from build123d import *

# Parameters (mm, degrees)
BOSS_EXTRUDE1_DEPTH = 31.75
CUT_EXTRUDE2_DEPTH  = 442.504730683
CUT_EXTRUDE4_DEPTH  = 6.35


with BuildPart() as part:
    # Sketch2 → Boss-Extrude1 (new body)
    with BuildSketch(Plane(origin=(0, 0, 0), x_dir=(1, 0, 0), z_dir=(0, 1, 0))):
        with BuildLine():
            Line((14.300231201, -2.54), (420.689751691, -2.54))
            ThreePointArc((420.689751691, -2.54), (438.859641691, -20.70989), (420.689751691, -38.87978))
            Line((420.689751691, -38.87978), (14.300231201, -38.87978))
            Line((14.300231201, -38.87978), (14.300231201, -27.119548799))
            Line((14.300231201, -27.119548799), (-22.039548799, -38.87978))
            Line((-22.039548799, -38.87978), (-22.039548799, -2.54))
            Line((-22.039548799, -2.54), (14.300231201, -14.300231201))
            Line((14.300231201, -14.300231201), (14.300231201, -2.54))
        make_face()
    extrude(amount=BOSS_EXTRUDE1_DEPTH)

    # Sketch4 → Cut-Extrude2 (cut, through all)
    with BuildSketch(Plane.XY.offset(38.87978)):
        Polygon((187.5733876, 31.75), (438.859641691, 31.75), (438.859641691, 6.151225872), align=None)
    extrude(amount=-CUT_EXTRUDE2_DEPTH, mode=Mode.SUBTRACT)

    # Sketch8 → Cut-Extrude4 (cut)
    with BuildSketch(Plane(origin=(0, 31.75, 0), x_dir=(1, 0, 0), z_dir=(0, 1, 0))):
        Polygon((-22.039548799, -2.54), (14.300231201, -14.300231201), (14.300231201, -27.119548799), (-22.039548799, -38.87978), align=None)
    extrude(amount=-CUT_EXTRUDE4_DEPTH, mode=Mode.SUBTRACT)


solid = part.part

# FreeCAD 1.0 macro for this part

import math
import FreeCAD as App
import Part
import Sketcher

V = App.Vector
Q = App.Units.Quantity


def add_polygon(sketch, points):
    """Adds a closed chain of lines whose ends are joined by coincident constraints."""
    first, n = sketch.GeometryCount, len(points)
    for a, b in zip(points, points[1:] + points[:1]):
        sketch.addGeometry(Part.LineSegment(App.Vector(*a, 0), App.Vector(*b, 0)), False)
    for i in range(n):
        sketch.addConstraint(Sketcher.Constraint("Coincident", first + i, 2, first + (i + 1) % n, 1))

doc = App.newDocument("Part")
body = doc.addObject("PartDesign::Body", "Body")

# Sketch on XZ plane
sketch1 = body.newObject("Sketcher::SketchObject", "Sketch")
sketch1.AttachmentSupport = (doc.getObject("XZ_Plane"), [""])
sketch1.MapMode = "FlatFace"
sketch1.addGeometry(Part.LineSegment(V(421, 3, 0), V(14, 3, 0)), False)
sketch1.addGeometry(Part.LineSegment(V(14, 3, 0), V(14, 14, 0)), False)
sketch1.addGeometry(Part.LineSegment(V(14, 14, 0), V(-22, 3, 0)), False)
sketch1.addGeometry(Part.LineSegment(V(-22, 3, 0), V(-22, 39, 0)), False)
sketch1.addGeometry(Part.LineSegment(V(-22, 39, 0), V(14, 27, 0)), False)
sketch1.addGeometry(Part.LineSegment(V(14, 27, 0), V(14, 39, 0)), False)
sketch1.addGeometry(Part.LineSegment(V(14, 39, 0), V(421, 39, 0)), False)
sketch1.addGeometry(Part.ArcOfCircle(Part.Circle(V(421, 21, 0), V(0, 0, 1), 18), math.radians(-90), math.radians(90)), False)
sketch1.addConstraint(Sketcher.Constraint("Coincident", 0, 2, 1, 1))
sketch1.addConstraint(Sketcher.Constraint("Coincident", 1, 2, 2, 1))
sketch1.addConstraint(Sketcher.Constraint("Coincident", 2, 2, 3, 1))
sketch1.addConstraint(Sketcher.Constraint("Coincident", 3, 2, 4, 1))
sketch1.addConstraint(Sketcher.Constraint("Coincident", 4, 2, 5, 1))
sketch1.addConstraint(Sketcher.Constraint("Coincident", 5, 2, 6, 1))
sketch1.addConstraint(Sketcher.Constraint("Tangent", 6, 2, 7, 2))
sketch1.addConstraint(Sketcher.Constraint("Tangent", 7, 1, 0, 1))
sketch1.addConstraint(Sketcher.Constraint("Horizontal", 0))
sketch1.addConstraint(Sketcher.Constraint("Vertical", 1))
sketch1.addConstraint(Sketcher.Constraint("Vertical", 3))
sketch1.addConstraint(Sketcher.Constraint("Vertical", 5))
sketch1.addConstraint(Sketcher.Constraint("Horizontal", 6))
sketch1.addConstraint(Sketcher.Constraint("Horizontal", 0, 2, 2, 2))
sketch1.addConstraint(Sketcher.Constraint("Horizontal", 3, 2, 5, 2))
sketch1.addConstraint(Sketcher.Constraint("Vertical", 1, 2, 4, 2))
sketch1.addConstraint(Sketcher.Constraint("Equal", 1, 5))
sketch1.addConstraint(Sketcher.Constraint("DistanceY", -1, 1, 0, 2, Q("0.1 in")))
sketch1.addConstraint(Sketcher.Constraint("DistanceY", 3, 1, 3, 2, Q("1.4307 in")))
sketch1.addConstraint(Sketcher.Constraint("DistanceX", 2, 2, 0, 2, Q("1.4307 in")))
sketch1.addConstraint(Sketcher.Constraint("DistanceX", 0, 2, 0, 1, Q("406.38952 mm")))
sketch1.addConstraint(Sketcher.Constraint("DistanceY", 1, 1, 1, 2, Q("11.760231 mm")))
sketch1.addConstraint(Sketcher.Constraint("DistanceX", -1, 1, 7, 3, Q("420.689752 mm")))
pad1 = body.newObject("PartDesign::Pad", "Pad")
pad1.Profile = sketch1
pad1.Length = Q("1.25 in")
pad1.Reversed = True

# Sketch on XY plane
sketch2 = body.newObject("Sketcher::SketchObject", "Sketch001")
sketch2.AttachmentSupport = (doc.getObject("XY_Plane"), [""])
sketch2.MapMode = "FlatFace"
sketch2.AttachmentOffset = App.Placement(V(0, 0, 1.5307 * 25.4), App.Rotation())
add_polygon(sketch2, [(439, 32), (188, 32), (439, 6)])  # lines 0-2
sketch2.addConstraint(Sketcher.Constraint("Horizontal", 0))
sketch2.addConstraint(Sketcher.Constraint("Vertical", 2))
sketch2.addConstraint(Sketcher.Constraint("DistanceY", -1, 1, 0, 2, Q("1.25 in")))
sketch2.addConstraint(Sketcher.Constraint("DistanceX", 0, 2, 0, 1, Q("251.286254 mm")))
sketch2.addConstraint(Sketcher.Constraint("DistanceY", 2, 1, 2, 2, Q("25.598774 mm")))
sketch2.addConstraint(Sketcher.Constraint("DistanceX", -1, 1, 1, 2, Q("438.859642 mm")))
pocket1 = body.newObject("PartDesign::Pocket", "Pocket")
pocket1.Profile = sketch2
pocket1.Type = "ThroughAll"

# Sketch on XZ plane
sketch3 = body.newObject("Sketcher::SketchObject", "Sketch002")
sketch3.AttachmentSupport = (doc.getObject("XZ_Plane"), [""])
sketch3.MapMode = "FlatFace"
sketch3.AttachmentOffset = App.Placement(V(0, 0, -1.25 * 25.4), App.Rotation())
add_polygon(sketch3, [(14, 14), (-22, 3), (-22, 39), (14, 27)])  # lines 0-3
sketch3.addConstraint(Sketcher.Constraint("Vertical", 1))
sketch3.addConstraint(Sketcher.Constraint("Vertical", 3))
sketch3.addConstraint(Sketcher.Constraint("Equal", 0, 2))
sketch3.addConstraint(Sketcher.Constraint("DistanceY", -1, 1, 0, 2, Q("0.1 in")))
sketch3.addConstraint(Sketcher.Constraint("DistanceY", 1, 1, 1, 2, Q("1.4307 in")))
sketch3.addConstraint(Sketcher.Constraint("DistanceX", 1, 2, 2, 2, Q("1.4307 in")))
sketch3.addConstraint(Sketcher.Constraint("DistanceY", 3, 2, 3, 1, Q("12.819318 mm")))
sketch3.addConstraint(Sketcher.Constraint("DistanceX", 0, 2, -1, 1, Q("22.039549 mm")))
pocket2 = body.newObject("PartDesign::Pocket", "Pocket001")
pocket2.Profile = sketch3
pocket2.Length = Q("0.25 in")
pocket2.Reversed = True

doc.recompute()
